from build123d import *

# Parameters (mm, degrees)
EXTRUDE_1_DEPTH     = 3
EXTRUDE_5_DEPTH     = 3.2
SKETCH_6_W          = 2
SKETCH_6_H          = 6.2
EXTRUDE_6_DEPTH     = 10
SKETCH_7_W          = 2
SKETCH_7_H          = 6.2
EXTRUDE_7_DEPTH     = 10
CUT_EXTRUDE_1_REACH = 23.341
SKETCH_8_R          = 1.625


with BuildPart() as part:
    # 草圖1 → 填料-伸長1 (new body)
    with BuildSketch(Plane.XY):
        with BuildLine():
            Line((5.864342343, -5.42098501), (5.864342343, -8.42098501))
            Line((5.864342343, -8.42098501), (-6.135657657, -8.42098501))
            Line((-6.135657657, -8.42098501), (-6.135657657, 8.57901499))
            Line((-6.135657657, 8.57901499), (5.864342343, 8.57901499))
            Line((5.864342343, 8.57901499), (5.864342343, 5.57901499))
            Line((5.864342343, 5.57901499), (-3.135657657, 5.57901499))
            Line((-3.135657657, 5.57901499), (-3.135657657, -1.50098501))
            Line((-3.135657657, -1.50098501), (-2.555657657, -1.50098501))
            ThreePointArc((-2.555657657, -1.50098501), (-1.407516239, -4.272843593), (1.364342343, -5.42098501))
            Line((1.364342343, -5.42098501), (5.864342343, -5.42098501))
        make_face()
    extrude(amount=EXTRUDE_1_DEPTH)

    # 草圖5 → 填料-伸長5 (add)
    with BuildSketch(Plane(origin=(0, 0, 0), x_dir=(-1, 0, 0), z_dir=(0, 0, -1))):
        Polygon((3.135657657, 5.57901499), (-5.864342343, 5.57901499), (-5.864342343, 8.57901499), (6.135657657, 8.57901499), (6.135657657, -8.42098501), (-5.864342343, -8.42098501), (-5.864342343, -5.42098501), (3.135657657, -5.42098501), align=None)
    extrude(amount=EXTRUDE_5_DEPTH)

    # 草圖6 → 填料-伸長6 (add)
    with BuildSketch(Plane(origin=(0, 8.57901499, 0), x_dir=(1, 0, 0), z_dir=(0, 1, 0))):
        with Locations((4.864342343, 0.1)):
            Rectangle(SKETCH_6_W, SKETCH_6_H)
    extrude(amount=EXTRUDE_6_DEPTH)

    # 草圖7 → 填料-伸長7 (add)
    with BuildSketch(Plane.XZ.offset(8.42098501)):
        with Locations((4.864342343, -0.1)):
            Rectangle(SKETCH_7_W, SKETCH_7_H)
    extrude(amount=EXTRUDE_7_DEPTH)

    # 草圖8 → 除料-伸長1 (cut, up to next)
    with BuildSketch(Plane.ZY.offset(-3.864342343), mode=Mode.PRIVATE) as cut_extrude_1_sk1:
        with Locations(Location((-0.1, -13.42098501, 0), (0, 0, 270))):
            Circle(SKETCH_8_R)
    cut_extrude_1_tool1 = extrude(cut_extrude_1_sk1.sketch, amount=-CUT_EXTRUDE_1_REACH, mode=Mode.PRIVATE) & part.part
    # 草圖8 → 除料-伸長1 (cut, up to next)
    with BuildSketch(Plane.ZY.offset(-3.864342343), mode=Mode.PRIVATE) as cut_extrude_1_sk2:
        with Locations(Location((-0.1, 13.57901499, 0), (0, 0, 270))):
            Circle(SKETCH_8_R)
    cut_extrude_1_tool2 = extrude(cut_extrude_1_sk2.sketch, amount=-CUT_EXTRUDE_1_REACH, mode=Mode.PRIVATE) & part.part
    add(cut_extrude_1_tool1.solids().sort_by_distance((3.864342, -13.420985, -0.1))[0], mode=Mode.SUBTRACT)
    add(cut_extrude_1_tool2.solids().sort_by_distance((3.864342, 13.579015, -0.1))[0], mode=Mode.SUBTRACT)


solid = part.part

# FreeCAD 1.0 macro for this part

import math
import FreeCAD as App
import Part
import Sketcher
Q = App.Units.Quantity

doc = App.newDocument("Part")
body = doc.addObject("PartDesign::Body", "Body")

# Sketch on XY plane
sketch1 = doc.addObject("Sketcher::SketchObject", "Sketch")
body.addObject(sketch1)
sketch1.AttachmentSupport = (doc.XY_Plane, [""])
sketch1.MapMode = "FlatFace"
sketch1.addGeometry([
    Part.LineSegment(App.Vector(5.9, -8.4, 0), App.Vector(5.9, -5.4, 0)),  # 0
    Part.LineSegment(App.Vector(5.9, -5.4, 0), App.Vector(1.4, -5.4, 0)),  # 1
    Part.ArcOfCircle(Part.Circle(App.Vector(1.4, -1.5, 0), App.Vector(0, 0, 1), 3.9), math.radians(180), math.radians(270)),  # 2
    Part.LineSegment(App.Vector(-2.6, -1.5, 0), App.Vector(-3.1, -1.5, 0)),  # 3
    Part.LineSegment(App.Vector(-3.1, -1.5, 0), App.Vector(-3.1, 5.6, 0)),  # 4
    Part.LineSegment(App.Vector(-3.1, 5.6, 0), App.Vector(5.9, 5.6, 0)),  # 5
    Part.LineSegment(App.Vector(5.9, 5.6, 0), App.Vector(5.9, 8.6, 0)),  # 6
    Part.LineSegment(App.Vector(5.9, 8.6, 0), App.Vector(-6.1, 8.6, 0)),  # 7
    Part.LineSegment(App.Vector(-6.1, 8.6, 0), App.Vector(-6.1, -8.4, 0)),  # 8
    Part.LineSegment(App.Vector(-6.1, -8.4, 0), App.Vector(5.9, -8.4, 0)),  # 9
], False)
sketch1.addConstraint([
    Sketcher.Constraint("Coincident", 0, 2, 1, 1),
    Sketcher.Constraint("Tangent", 1, 2, 2, 2),
    Sketcher.Constraint("Coincident", 2, 1, 3, 1),
    Sketcher.Constraint("Coincident", 3, 2, 4, 1),
    Sketcher.Constraint("Coincident", 4, 2, 5, 1),
    Sketcher.Constraint("Coincident", 5, 2, 6, 1),
    Sketcher.Constraint("Coincident", 6, 2, 7, 1),
    Sketcher.Constraint("Coincident", 7, 2, 8, 1),
    Sketcher.Constraint("Coincident", 8, 2, 9, 1),
    Sketcher.Constraint("Coincident", 9, 2, 0, 1),
    Sketcher.Constraint("Vertical", 0),
    Sketcher.Constraint("Horizontal", 1),
    Sketcher.Constraint("Horizontal", 3),
    Sketcher.Constraint("Vertical", 4),
    Sketcher.Constraint("Horizontal", 5),
    Sketcher.Constraint("Vertical", 6),
    Sketcher.Constraint("Horizontal", 7),
    Sketcher.Constraint("Vertical", 8),
    Sketcher.Constraint("Horizontal", 9),
    Sketcher.Constraint("Vertical", 0, 2, 5, 2),
    Sketcher.Constraint("Equal", 0, 6),
    Sketcher.Constraint("DistanceX", 5, 1, 5, 2, Q("9 mm")),
    Sketcher.Constraint("DistanceX", 7, 2, 7, 1, Q("12 mm")),
    Sketcher.Constraint("DistanceY", 0, 1, 0, 2, Q("3 mm")),
    Sketcher.Constraint("DistanceY", 8, 2, 8, 1, Q("17 mm")),
    Sketcher.Constraint("Radius", 2, Q("3.92 mm")),
    Sketcher.Constraint("DistanceX", 1, 2, 1, 1, Q("4.5 mm")),
    Sketcher.Constraint("DistanceY", 4, 1, 4, 2, Q("7.08 mm")),
    Sketcher.Constraint("DistanceX", -1, 1, 2, 3, Q("1.364342 mm")),
    Sketcher.Constraint("DistanceY", 2, 3, -1, 1, Q("1.500985 mm")),
])
pad1 = doc.addObject("PartDesign::Pad", "Pad")
body.addObject(pad1)
pad1.Profile = sketch1
pad1.Length = 3

# Sketch on XY plane
sketch2 = doc.addObject("Sketcher::SketchObject", "Sketch001")
body.addObject(sketch2)
sketch2.AttachmentSupport = (doc.XY_Plane, [""])
sketch2.MapMode = "FlatFace"
sketch2.addGeometry([
    Part.LineSegment(App.Vector(5.9, 5.6, 0), App.Vector(-3.1, 5.6, 0)),  # 0
    Part.LineSegment(App.Vector(-3.1, 5.6, 0), App.Vector(-3.1, -5.4, 0)),  # 1
    Part.LineSegment(App.Vector(-3.1, -5.4, 0), App.Vector(5.9, -5.4, 0)),  # 2
    Part.LineSegment(App.Vector(5.9, -5.4, 0), App.Vector(5.9, -8.4, 0)),  # 3
    Part.LineSegment(App.Vector(5.9, -8.4, 0), App.Vector(-6.1, -8.4, 0)),  # 4
    Part.LineSegment(App.Vector(-6.1, -8.4, 0), App.Vector(-6.1, 8.6, 0)),  # 5
    Part.LineSegment(App.Vector(-6.1, 8.6, 0), App.Vector(5.9, 8.6, 0)),  # 6
    Part.LineSegment(App.Vector(5.9, 8.6, 0), App.Vector(5.9, 5.6, 0)),  # 7
], False)
sketch2.addConstraint([
    Sketcher.Constraint("Coincident", 0, 2, 1, 1),
    Sketcher.Constraint("Coincident", 1, 2, 2, 1),
    Sketcher.Constraint("Coincident", 2, 2, 3, 1),
    Sketcher.Constraint("Coincident", 3, 2, 4, 1),
    Sketcher.Constraint("Coincident", 4, 2, 5, 1),
    Sketcher.Constraint("Coincident", 5, 2, 6, 1),
    Sketcher.Constraint("Coincident", 6, 2, 7, 1),
    Sketcher.Constraint("Coincident", 7, 2, 0, 1),
    Sketcher.Constraint("Horizontal", 0),
    Sketcher.Constraint("Vertical", 1),
    Sketcher.Constraint("Horizontal", 2),
    Sketcher.Constraint("Vertical", 3),
    Sketcher.Constraint("Horizontal", 4),
    Sketcher.Constraint("Vertical", 5),
    Sketcher.Constraint("Horizontal", 6),
    Sketcher.Constraint("Vertical", 7),
    Sketcher.Constraint("Vertical", 3, 2, 6, 2),
    Sketcher.Constraint("Equal", 3, 7),
    Sketcher.Constraint("DistanceX", 0, 2, 0, 1, Q("9 mm")),
    Sketcher.Constraint("DistanceX", 4, 2, 4, 1, Q("12 mm")),
    Sketcher.Constraint("DistanceY", 1, 2, 1, 1, Q("11 mm")),
    Sketcher.Constraint("DistanceY", 3, 2, 3, 1, Q("3 mm")),
    Sketcher.Constraint("DistanceX", 0, 2, -1, 1, Q("3.135658 mm")),
    Sketcher.Constraint("DistanceY", -1, 1, 0, 2, Q("5.579015 mm")),
])
pad2 = doc.addObject("PartDesign::Pad", "Pad001")
body.addObject(pad2)
pad2.Profile = sketch2
pad2.Length = 3.2
pad2.Reversed = True

# Sketch on XZ plane
sketch3 = doc.addObject("Sketcher::SketchObject", "Sketch002")
body.addObject(sketch3)
sketch3.AttachmentSupport = (doc.XZ_Plane, [""])
sketch3.MapMode = "FlatFace"
sketch3.AttachmentOffset = App.Placement(App.Vector(0, 0, -8.579015), App.Rotation())
sketch3.addGeometry([
    Part.LineSegment(App.Vector(3.9, -3.2, 0), App.Vector(3.9, 3, 0)),
    Part.LineSegment(App.Vector(3.9, 3, 0), App.Vector(5.9, 3, 0)),
    Part.LineSegment(App.Vector(5.9, 3, 0), App.Vector(5.9, -3.2, 0)),
    Part.LineSegment(App.Vector(5.9, -3.2, 0), App.Vector(3.9, -3.2, 0)),
], False)
sketch3.addConstraint([
    Sketcher.Constraint("Coincident", 0, 2, 1, 1),
    Sketcher.Constraint("Coincident", 1, 2, 2, 1),
    Sketcher.Constraint("Coincident", 2, 2, 3, 1),
    Sketcher.Constraint("Coincident", 3, 2, 0, 1),
    Sketcher.Constraint("Vertical", 0),
    Sketcher.Constraint("Horizontal", 1),
    Sketcher.Constraint("Vertical", 2),
    Sketcher.Constraint("Horizontal", 3),
    Sketcher.Constraint("DistanceX", 1, 1, 1, 2, Q("2 mm")),
    Sketcher.Constraint("DistanceY", 0, 1, 0, 2, Q("6.2 mm")),
    Sketcher.Constraint("DistanceY", -1, 1, 0, 2, Q("3 mm")),
    Sketcher.Constraint("DistanceX", -1, 1, 0, 2, Q("3.864342 mm")),
])
pad3 = doc.addObject("PartDesign::Pad", "Pad002")
body.addObject(pad3)
pad3.Profile = sketch3
pad3.Length = 10
pad3.Reversed = True

# Sketch on XZ plane
sketch4 = doc.addObject("Sketcher::SketchObject", "Sketch003")
body.addObject(sketch4)
sketch4.AttachmentSupport = (doc.XZ_Plane, [""])
sketch4.MapMode = "FlatFace"
sketch4.AttachmentOffset = App.Placement(App.Vector(0, 0, 8.420985), App.Rotation())
sketch4.addGeometry([
    Part.LineSegment(App.Vector(3.9, 3, 0), App.Vector(3.9, -3.2, 0)),
    Part.LineSegment(App.Vector(3.9, -3.2, 0), App.Vector(5.9, -3.2, 0)),
    Part.LineSegment(App.Vector(5.9, -3.2, 0), App.Vector(5.9, 3, 0)),
    Part.LineSegment(App.Vector(5.9, 3, 0), App.Vector(3.9, 3, 0)),
], False)
sketch4.addConstraint([
    Sketcher.Constraint("Coincident", 0, 2, 1, 1),
    Sketcher.Constraint("Coincident", 1, 2, 2, 1),
    Sketcher.Constraint("Coincident", 2, 2, 3, 1),
    Sketcher.Constraint("Coincident", 3, 2, 0, 1),
    Sketcher.Constraint("Vertical", 0),
    Sketcher.Constraint("Horizontal", 1),
    Sketcher.Constraint("Vertical", 2),
    Sketcher.Constraint("Horizontal", 3),
    Sketcher.Constraint("DistanceX", 1, 1, 1, 2, Q("2 mm")),
    Sketcher.Constraint("DistanceY", 0, 2, 0, 1, Q("6.2 mm")),
    Sketcher.Constraint("DistanceY", -1, 1, 2, 2, Q("3 mm")),
    Sketcher.Constraint("DistanceX", -1, 1, 0, 2, Q("3.864342 mm")),
])
pad4 = doc.addObject("PartDesign::Pad", "Pad003")
body.addObject(pad4)
pad4.Profile = sketch4
pad4.Length = 10

# Sketch on YZ plane
sketch5 = doc.addObject("Sketcher::SketchObject", "Sketch004")
body.addObject(sketch5)
sketch5.AttachmentSupport = (doc.YZ_Plane, [""])
sketch5.MapMode = "FlatFace"
sketch5.AttachmentOffset = App.Placement(App.Vector(0, 0, 3.864342), App.Rotation())
sketch5.addGeometry(Part.Circle(App.Vector(-13.4, -0.1, 0), App.Vector(0, 0, 1), 1.6), False)
sketch5.addConstraint([
    Sketcher.Constraint("Diameter", 0, Q("3.25 mm")),
    Sketcher.Constraint("DistanceY", 0, 3, -1, 1, Q("0.1 mm")),
    Sketcher.Constraint("DistanceX", 0, 3, -1, 1, Q("13.420985 mm")),
])
pocket1 = doc.addObject("PartDesign::Pocket", "Pocket")
body.addObject(pocket1)
pocket1.Profile = sketch5
pocket1.Type = "UpToFirst"
pocket1.Reversed = True

# Sketch on YZ plane
sketch6 = doc.addObject("Sketcher::SketchObject", "Sketch005")
body.addObject(sketch6)
sketch6.AttachmentSupport = (doc.YZ_Plane, [""])
sketch6.MapMode = "FlatFace"
sketch6.AttachmentOffset = App.Placement(App.Vector(0, 0, 3.864342), App.Rotation())
sketch6.addGeometry(Part.Circle(App.Vector(13.6, -0.1, 0), App.Vector(0, 0, 1), 1.6), False)
sketch6.addConstraint([
    Sketcher.Constraint("Diameter", 0, Q("3.25 mm")),
    Sketcher.Constraint("DistanceY", 0, 3, -1, 1, Q("0.1 mm")),
    Sketcher.Constraint("DistanceX", -1, 1, 0, 3, Q("13.579015 mm")),
])
pocket2 = doc.addObject("PartDesign::Pocket", "Pocket001")
body.addObject(pocket2)
pocket2.Profile = sketch6
pocket2.Type = "UpToFirst"
pocket2.Reversed = True

doc.recompute()
